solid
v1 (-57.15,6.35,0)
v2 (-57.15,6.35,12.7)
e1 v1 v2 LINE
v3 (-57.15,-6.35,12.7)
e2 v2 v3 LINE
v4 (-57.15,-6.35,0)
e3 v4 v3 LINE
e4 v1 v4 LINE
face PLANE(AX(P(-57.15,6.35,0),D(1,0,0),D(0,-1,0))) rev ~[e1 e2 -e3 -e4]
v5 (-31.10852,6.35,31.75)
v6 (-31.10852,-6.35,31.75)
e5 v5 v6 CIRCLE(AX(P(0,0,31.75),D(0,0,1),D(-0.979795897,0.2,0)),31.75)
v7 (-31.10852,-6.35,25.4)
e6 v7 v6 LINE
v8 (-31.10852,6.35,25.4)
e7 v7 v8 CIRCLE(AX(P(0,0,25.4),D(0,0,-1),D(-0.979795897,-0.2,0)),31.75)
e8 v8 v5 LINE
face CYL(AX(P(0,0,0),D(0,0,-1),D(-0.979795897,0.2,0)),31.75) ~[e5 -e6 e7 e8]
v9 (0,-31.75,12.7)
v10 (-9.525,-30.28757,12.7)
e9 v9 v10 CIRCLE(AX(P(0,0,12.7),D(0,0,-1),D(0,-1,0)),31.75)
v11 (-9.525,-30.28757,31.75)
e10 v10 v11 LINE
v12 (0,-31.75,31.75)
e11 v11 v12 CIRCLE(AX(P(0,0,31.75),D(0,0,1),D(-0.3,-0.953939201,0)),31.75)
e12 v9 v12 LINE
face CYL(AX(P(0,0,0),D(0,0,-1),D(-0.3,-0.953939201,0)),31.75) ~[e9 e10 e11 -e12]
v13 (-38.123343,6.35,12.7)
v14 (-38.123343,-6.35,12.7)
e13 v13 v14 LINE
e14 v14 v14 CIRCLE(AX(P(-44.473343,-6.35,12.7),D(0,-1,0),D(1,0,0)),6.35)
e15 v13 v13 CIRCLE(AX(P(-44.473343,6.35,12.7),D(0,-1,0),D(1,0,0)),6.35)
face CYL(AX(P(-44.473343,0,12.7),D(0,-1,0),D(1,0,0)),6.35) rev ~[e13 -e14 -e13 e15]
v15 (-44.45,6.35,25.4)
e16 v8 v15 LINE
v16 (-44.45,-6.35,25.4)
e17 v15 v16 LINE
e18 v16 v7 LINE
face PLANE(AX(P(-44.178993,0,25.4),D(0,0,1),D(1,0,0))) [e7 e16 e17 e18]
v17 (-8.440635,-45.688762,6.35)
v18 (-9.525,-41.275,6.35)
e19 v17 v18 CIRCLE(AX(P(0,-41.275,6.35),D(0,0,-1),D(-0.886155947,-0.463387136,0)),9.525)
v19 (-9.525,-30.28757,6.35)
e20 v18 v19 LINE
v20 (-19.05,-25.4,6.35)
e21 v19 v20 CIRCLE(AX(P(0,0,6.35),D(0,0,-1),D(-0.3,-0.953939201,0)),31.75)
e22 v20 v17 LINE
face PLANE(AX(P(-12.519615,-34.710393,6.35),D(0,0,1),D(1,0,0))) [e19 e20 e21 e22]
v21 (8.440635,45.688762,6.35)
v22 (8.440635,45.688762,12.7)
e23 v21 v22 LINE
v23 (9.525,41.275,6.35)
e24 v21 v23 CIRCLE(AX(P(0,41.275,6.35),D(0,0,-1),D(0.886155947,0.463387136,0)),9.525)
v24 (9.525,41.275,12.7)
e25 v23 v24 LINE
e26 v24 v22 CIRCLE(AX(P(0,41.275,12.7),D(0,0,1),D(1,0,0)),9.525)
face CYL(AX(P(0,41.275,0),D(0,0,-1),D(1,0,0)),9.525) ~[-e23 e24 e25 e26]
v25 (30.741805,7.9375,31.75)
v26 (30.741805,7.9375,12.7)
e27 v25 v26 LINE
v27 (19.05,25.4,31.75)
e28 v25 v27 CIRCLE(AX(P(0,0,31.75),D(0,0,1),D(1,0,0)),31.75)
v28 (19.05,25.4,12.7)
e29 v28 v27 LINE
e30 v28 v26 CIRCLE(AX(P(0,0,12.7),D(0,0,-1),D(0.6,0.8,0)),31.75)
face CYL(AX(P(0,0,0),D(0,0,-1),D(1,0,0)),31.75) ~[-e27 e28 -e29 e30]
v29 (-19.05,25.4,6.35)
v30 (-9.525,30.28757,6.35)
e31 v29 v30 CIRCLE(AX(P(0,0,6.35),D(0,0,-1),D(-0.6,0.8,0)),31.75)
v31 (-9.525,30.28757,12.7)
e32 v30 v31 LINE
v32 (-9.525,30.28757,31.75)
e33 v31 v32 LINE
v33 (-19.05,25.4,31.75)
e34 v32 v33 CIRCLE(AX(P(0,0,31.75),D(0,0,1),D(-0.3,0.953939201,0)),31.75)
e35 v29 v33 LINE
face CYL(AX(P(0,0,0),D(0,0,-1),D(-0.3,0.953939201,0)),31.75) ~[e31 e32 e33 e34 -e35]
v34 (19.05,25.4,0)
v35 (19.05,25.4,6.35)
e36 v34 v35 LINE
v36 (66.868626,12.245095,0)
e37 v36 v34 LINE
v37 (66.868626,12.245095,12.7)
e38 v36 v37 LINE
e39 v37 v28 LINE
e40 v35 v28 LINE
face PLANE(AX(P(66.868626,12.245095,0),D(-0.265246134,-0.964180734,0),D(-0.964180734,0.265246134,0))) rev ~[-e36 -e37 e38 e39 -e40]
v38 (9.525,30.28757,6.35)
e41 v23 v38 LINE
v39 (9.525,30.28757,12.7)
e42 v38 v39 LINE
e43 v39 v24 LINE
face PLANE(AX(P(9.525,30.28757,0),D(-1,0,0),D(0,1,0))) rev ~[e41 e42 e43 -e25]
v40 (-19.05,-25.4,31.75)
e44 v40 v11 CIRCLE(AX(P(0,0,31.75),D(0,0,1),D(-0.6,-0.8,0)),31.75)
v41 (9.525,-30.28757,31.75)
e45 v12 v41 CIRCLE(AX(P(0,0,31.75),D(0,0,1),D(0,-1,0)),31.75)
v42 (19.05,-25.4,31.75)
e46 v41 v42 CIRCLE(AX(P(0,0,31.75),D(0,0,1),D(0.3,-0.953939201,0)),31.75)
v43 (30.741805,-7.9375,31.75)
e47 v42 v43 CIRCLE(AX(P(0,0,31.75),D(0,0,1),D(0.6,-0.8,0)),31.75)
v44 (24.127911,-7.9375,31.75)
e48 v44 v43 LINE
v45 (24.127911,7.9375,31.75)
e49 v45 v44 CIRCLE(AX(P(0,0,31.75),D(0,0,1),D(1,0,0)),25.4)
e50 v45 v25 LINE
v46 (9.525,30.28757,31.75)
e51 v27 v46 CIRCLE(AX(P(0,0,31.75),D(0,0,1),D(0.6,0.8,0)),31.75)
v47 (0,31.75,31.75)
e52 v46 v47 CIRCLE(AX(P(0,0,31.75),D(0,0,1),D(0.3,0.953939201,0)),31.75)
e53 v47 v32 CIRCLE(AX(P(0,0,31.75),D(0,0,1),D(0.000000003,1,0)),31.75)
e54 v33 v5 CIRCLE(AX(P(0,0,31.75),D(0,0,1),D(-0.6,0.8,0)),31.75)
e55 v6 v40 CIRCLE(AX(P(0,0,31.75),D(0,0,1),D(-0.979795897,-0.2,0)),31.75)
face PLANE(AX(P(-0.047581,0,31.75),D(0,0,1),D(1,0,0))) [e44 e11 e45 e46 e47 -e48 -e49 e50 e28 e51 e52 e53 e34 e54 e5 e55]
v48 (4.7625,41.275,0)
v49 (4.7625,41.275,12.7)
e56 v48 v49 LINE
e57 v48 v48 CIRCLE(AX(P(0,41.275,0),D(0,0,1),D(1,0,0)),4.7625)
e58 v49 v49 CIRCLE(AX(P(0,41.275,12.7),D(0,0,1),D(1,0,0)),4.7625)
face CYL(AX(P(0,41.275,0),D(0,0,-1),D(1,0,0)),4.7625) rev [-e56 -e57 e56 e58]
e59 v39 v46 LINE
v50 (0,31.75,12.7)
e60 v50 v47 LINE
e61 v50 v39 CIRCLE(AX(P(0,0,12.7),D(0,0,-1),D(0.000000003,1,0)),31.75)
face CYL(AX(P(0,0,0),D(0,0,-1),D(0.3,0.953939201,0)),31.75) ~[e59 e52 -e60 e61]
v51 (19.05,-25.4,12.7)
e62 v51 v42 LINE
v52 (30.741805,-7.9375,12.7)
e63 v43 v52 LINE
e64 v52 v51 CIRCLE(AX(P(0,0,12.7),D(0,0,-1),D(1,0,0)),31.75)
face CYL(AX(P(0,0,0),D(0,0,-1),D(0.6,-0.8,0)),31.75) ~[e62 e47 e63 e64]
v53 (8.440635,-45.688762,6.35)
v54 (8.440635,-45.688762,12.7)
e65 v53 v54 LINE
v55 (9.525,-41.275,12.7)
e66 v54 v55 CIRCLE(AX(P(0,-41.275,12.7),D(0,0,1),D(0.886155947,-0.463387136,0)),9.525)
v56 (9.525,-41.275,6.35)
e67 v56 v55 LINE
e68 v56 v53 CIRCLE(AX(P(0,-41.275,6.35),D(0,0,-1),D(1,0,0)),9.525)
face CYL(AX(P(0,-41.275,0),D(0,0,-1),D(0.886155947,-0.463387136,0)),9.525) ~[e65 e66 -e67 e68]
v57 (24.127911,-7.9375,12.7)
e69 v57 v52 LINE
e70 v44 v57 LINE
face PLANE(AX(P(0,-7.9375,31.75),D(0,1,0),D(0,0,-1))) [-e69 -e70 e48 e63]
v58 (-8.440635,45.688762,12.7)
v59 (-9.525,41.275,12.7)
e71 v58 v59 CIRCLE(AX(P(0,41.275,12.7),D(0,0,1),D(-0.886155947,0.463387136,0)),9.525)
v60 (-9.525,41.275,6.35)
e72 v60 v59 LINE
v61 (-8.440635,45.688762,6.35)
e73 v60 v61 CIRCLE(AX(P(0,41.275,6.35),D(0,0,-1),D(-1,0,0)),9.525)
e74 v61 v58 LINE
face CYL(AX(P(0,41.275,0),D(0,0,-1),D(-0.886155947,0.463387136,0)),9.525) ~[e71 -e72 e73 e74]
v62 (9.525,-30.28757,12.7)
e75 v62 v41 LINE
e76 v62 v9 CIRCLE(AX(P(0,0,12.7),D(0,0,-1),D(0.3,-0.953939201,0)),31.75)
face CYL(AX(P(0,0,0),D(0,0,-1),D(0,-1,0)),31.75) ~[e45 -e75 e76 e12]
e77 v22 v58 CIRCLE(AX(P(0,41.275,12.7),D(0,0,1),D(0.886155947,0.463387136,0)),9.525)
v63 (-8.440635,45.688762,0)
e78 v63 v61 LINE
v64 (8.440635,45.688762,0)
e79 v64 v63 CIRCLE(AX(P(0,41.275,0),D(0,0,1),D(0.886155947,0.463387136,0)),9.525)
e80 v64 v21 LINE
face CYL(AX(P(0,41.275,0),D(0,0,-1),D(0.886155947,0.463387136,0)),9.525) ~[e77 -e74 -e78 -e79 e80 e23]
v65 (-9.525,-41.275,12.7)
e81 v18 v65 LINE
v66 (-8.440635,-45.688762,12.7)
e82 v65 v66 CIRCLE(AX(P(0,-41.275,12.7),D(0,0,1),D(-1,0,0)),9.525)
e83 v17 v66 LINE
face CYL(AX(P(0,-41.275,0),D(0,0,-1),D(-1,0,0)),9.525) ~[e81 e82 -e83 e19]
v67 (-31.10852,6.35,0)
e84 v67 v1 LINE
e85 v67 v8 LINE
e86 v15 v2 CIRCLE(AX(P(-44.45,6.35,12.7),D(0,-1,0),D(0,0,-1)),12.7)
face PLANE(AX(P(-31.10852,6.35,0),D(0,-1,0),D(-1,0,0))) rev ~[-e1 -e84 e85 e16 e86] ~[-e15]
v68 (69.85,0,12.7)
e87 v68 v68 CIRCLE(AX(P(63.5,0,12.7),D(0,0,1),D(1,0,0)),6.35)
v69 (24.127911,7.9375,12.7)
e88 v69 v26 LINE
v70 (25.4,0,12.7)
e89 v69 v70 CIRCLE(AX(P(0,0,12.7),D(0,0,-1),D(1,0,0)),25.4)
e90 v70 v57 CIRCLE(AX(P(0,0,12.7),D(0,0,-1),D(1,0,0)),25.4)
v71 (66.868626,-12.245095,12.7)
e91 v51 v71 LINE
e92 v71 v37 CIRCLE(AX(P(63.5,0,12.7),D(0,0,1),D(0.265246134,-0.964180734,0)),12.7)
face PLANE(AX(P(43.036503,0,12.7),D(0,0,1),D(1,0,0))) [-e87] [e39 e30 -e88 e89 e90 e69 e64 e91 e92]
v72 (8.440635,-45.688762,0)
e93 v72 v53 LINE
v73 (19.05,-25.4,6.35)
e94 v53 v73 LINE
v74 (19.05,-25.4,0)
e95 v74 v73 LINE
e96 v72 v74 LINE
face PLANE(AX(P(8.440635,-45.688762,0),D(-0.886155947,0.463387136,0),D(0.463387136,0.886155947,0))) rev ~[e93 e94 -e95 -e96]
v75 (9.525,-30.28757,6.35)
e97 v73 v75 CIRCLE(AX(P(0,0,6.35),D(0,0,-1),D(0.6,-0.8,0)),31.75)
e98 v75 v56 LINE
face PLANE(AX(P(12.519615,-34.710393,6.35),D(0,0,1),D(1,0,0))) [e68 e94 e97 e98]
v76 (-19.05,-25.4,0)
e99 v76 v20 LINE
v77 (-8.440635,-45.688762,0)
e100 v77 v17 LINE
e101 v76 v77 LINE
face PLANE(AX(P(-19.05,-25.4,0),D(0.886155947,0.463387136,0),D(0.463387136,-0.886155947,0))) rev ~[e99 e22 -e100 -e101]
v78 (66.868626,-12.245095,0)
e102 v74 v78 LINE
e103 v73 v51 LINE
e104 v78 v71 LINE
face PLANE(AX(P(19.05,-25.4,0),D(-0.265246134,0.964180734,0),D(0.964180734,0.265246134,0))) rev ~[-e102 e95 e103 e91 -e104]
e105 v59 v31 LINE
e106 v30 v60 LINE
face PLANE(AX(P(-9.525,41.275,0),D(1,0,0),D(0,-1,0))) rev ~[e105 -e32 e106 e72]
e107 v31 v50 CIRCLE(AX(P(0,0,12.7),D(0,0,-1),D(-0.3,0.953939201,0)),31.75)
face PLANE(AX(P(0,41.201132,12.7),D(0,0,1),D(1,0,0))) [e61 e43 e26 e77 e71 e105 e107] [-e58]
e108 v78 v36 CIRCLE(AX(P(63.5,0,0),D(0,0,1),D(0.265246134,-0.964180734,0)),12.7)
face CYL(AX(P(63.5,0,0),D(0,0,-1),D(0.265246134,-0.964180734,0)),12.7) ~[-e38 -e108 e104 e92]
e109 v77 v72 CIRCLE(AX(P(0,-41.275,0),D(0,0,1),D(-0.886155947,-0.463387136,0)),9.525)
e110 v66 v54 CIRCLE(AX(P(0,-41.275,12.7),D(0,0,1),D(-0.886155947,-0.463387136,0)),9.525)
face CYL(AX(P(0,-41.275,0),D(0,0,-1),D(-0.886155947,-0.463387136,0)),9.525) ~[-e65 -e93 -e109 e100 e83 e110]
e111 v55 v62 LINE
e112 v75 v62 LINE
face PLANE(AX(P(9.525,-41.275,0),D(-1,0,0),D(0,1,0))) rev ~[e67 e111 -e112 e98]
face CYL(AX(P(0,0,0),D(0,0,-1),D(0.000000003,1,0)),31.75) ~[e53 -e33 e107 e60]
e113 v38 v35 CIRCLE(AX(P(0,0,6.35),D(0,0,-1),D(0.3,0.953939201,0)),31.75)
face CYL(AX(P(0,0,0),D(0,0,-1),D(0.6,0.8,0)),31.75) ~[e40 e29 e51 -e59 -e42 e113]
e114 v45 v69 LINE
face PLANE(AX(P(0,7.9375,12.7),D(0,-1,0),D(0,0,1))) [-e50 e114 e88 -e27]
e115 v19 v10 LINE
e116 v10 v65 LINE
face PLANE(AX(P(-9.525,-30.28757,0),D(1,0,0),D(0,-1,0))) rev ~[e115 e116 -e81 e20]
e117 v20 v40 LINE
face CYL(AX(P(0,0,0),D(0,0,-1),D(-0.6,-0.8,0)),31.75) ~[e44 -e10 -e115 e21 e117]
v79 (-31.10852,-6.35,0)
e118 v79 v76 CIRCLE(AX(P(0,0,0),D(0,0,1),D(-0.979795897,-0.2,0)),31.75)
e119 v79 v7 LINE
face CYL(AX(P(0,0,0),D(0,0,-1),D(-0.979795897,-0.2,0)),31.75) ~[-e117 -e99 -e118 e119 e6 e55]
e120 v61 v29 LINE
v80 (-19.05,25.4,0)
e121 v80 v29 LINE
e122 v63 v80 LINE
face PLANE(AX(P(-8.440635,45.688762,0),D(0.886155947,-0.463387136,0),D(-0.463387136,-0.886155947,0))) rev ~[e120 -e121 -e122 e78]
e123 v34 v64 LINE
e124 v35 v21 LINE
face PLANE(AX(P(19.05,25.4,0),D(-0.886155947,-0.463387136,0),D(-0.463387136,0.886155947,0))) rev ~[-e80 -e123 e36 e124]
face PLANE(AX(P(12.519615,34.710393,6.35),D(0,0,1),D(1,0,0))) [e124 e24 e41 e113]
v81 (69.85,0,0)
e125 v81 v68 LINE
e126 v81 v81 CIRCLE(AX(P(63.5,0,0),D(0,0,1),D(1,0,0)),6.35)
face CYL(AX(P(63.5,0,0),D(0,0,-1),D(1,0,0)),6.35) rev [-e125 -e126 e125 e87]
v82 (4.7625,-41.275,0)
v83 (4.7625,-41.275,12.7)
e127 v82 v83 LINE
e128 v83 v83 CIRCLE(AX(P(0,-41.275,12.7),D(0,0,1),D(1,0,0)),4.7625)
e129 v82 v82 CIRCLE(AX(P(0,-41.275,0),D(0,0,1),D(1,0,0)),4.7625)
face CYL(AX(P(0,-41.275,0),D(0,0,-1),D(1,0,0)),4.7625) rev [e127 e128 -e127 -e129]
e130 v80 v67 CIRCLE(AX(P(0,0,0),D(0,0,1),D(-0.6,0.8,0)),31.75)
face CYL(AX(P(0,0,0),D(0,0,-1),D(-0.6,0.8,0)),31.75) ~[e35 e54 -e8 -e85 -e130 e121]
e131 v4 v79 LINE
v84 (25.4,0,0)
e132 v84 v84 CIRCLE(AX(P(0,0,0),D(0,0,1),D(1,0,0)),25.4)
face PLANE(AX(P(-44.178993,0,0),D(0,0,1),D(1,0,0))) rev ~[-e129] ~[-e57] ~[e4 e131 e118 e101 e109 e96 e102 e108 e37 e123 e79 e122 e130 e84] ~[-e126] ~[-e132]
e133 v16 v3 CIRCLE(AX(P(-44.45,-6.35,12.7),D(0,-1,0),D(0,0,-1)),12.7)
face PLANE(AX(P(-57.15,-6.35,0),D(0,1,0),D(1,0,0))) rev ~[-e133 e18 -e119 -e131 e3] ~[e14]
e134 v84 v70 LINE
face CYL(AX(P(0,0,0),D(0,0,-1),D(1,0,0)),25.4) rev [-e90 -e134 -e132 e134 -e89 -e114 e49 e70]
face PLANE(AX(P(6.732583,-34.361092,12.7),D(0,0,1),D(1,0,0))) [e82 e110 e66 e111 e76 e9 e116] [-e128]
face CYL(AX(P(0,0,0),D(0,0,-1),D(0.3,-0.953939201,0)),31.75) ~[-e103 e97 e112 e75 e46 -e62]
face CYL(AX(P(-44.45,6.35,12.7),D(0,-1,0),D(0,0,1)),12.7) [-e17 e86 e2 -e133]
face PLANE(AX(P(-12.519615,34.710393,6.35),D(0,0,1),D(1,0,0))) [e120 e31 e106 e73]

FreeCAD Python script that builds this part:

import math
import FreeCAD as App
import Part
import Sketcher
Q = App.Units.Quantity


def edges_at(feature, points):
    """Names of the edges that pass closest to the given points."""
    edges = feature.Shape.Edges
    near = lambda p: min(range(len(edges)), key=lambda i: edges[i].distToShape(Part.Vertex(*p))[0])
    return sorted({f"Edge{near(p) + 1}" for p in points})

doc = App.newDocument("Part")
body = doc.addObject("PartDesign::Body", "Body")

# Sketch on XY plane
sketch1 = body.newObject("Sketcher::SketchObject", "Sketch")
sketch1.AttachmentSupport = (doc.getObject("XY_Plane"), [""])
sketch1.MapMode = "FlatFace"
sketch1.addGeometry(Part.ArcOfCircle(Part.Circle(App.Vector(0, 0, 0), App.Vector(0, 0, 1), 32), math.radians(-53), math.radians(0)), False)
sketch1.addGeometry(Part.ArcOfCircle(Part.Circle(App.Vector(0, 0, 0), App.Vector(0, 0, 1), 32), math.radians(0), math.radians(53)), False)
sketch1.addGeometry(Part.ArcOfCircle(Part.Circle(App.Vector(0, 0, 0), App.Vector(0, 0, 1), 32), math.radians(53.13), math.radians(72.54)), False)
sketch1.addGeometry(Part.ArcOfCircle(Part.Circle(App.Vector(0, 0, 0), App.Vector(0, 0, 1), 32), math.radians(72.54), math.radians(90)), False)
sketch1.addGeometry(Part.ArcOfCircle(Part.Circle(App.Vector(0, 0, 0), App.Vector(0, 0, 1), 32), math.radians(90), math.radians(107.46)), False)
sketch1.addGeometry(Part.ArcOfCircle(Part.Circle(App.Vector(0, 0, 0), App.Vector(0, 0, 1), 32), math.radians(107.46), math.radians(126.87)), False)
sketch1.addGeometry(Part.ArcOfCircle(Part.Circle(App.Vector(0, 0, 0), App.Vector(0, 0, 1), 32), math.radians(127), math.radians(168)), False)
sketch1.addGeometry(Part.ArcOfCircle(Part.Circle(App.Vector(0, 0, 0), App.Vector(0, 0, 1), 32), math.radians(168), math.radians(192)), False)
sketch1.addGeometry(Part.ArcOfCircle(Part.Circle(App.Vector(0, 0, 0), App.Vector(0, 0, 1), 32), math.radians(-168), math.radians(-127)), False)
sketch1.addGeometry(Part.ArcOfCircle(Part.Circle(App.Vector(0, 0, 0), App.Vector(0, 0, 1), 32), math.radians(-126.87), math.radians(-107.46)), False)
sketch1.addGeometry(Part.ArcOfCircle(Part.Circle(App.Vector(0, 0, 0), App.Vector(0, 0, 1), 32), math.radians(-107.46), math.radians(-90)), False)
sketch1.addGeometry(Part.ArcOfCircle(Part.Circle(App.Vector(0, 0, 0), App.Vector(0, 0, 1), 32), math.radians(-90), math.radians(-72.54)), False)
sketch1.addGeometry(Part.ArcOfCircle(Part.Circle(App.Vector(0, 0, 0), App.Vector(0, 0, 1), 32), math.radians(-72.54), math.radians(-53.13)), False)
sketch1.addGeometry(Part.Circle(App.Vector(0, 0, 0), App.Vector(0, 0, 1), 25), False)
sketch1.addConstraint(Sketcher.Constraint("Tangent", 0, 2, 1, 1))
sketch1.addConstraint(Sketcher.Constraint("Tangent", 1, 2, 2, 1))
sketch1.addConstraint(Sketcher.Constraint("Tangent", 2, 2, 3, 1))
sketch1.addConstraint(Sketcher.Constraint("Tangent", 3, 2, 4, 1))
sketch1.addConstraint(Sketcher.Constraint("Tangent", 4, 2, 5, 1))
sketch1.addConstraint(Sketcher.Constraint("Tangent", 5, 2, 6, 1))
sketch1.addConstraint(Sketcher.Constraint("Tangent", 6, 2, 7, 1))
sketch1.addConstraint(Sketcher.Constraint("Tangent", 7, 2, 8, 1))
sketch1.addConstraint(Sketcher.Constraint("Tangent", 8, 2, 9, 1))
sketch1.addConstraint(Sketcher.Constraint("Tangent", 9, 2, 10, 1))
sketch1.addConstraint(Sketcher.Constraint("Tangent", 10, 2, 11, 1))
sketch1.addConstraint(Sketcher.Constraint("Tangent", 11, 2, 12, 1))
sketch1.addConstraint(Sketcher.Constraint("Tangent", 12, 2, 0, 1))
sketch1.addConstraint(Sketcher.Constraint("Coincident", 0, 3, -1, 1))
sketch1.addConstraint(Sketcher.Constraint("Coincident", 2, 3, -1, 1))
sketch1.addConstraint(Sketcher.Constraint("Coincident", 4, 3, -1, 1))
sketch1.addConstraint(Sketcher.Constraint("Coincident", 6, 3, -1, 1))
sketch1.addConstraint(Sketcher.Constraint("Coincident", 8, 3, -1, 1))
sketch1.addConstraint(Sketcher.Constraint("Coincident", 10, 3, -1, 1))
sketch1.addConstraint(Sketcher.Constraint("Coincident", 13, 3, -1, 1))
sketch1.addConstraint(Sketcher.Constraint("PointOnObject", 0, 2, -1))
sketch1.addConstraint(Sketcher.Constraint("PointOnObject", 3, 2, -2))
sketch1.addConstraint(Sketcher.Constraint("PointOnObject", 10, 2, -2))
sketch1.addConstraint(Sketcher.Constraint("Horizontal", 2, 2, 4, 2))
sketch1.addConstraint(Sketcher.Constraint("Horizontal", 1, 2, 5, 2))
sketch1.addConstraint(Sketcher.Constraint("Horizontal", 9, 2, 11, 2))
sketch1.addConstraint(Sketcher.Constraint("Horizontal", 8, 2, 12, 2))
sketch1.addConstraint(Sketcher.Constraint("Vertical", 6, 2, 7, 2))
sketch1.addConstraint(Sketcher.Constraint("Vertical", 5, 2, 8, 2))
sketch1.addConstraint(Sketcher.Constraint("Vertical", 4, 2, 9, 2))
sketch1.addConstraint(Sketcher.Constraint("Diameter", 13, Q("2 in")))
sketch1.addConstraint(Sketcher.Constraint("Radius", 0, Q("1.25 in")))
sketch1.addConstraint(Sketcher.Constraint("DistanceY", -1, 1, 1, 2, Q("1 in")))
sketch1.addConstraint(Sketcher.Constraint("DistanceY", 7, 2, 6, 2, Q("0.5 in")))
sketch1.addConstraint(Sketcher.Constraint("DistanceX", 4, 2, 2, 2, Q("0.75 in")))
pad1 = body.newObject("PartDesign::Pad", "Pad")
pad1.Profile = sketch1
pad1.Length = Q("1.25 in")

# Sketch on XY plane
sketch2 = body.newObject("Sketcher::SketchObject", "Sketch001")
sketch2.AttachmentSupport = (doc.getObject("XY_Plane"), [""])
sketch2.MapMode = "FlatFace"
sketch2.addGeometry(Part.ArcOfCircle(Part.Circle(App.Vector(0, 41.3, 0), App.Vector(0, 0, 1), 9.5), math.radians(0), math.radians(28)), False)
sketch2.addGeometry(Part.ArcOfCircle(Part.Circle(App.Vector(0, 41.3, 0), App.Vector(0, 0, 1), 9.5), math.radians(28), math.radians(152)), False)
sketch2.addGeometry(Part.ArcOfCircle(Part.Circle(App.Vector(0, 41.3, 0), App.Vector(0, 0, 1), 9.5), math.radians(152), math.radians(180)), False)
sketch2.addGeometry(Part.LineSegment(App.Vector(-9.5, 41.3, 0), App.Vector(-9.5, 30.3, 0)), False)
sketch2.addGeometry(Part.ArcOfCircle(Part.Circle(App.Vector(0, 0, 0), App.Vector(0, 0, 1), 31.7), math.radians(90), math.radians(107.46)), False)
sketch2.addGeometry(Part.ArcOfCircle(Part.Circle(App.Vector(0, 0, 0), App.Vector(0, 0, 1), 31.7), math.radians(72.54), math.radians(90)), False)
sketch2.addGeometry(Part.LineSegment(App.Vector(9.5, 30.3, 0), App.Vector(9.5, 41.3, 0)), False)
sketch2.addGeometry(Part.Circle(App.Vector(0, 41.3, 0), App.Vector(0, 0, 1), 4.8), False)
sketch2.addGeometry(Part.LineSegment(App.Vector(9.5, -41.3, 0), App.Vector(9.5, -30.3, 0)), False)
sketch2.addGeometry(Part.ArcOfCircle(Part.Circle(App.Vector(0, 0, 0), App.Vector(0, 0, 1), 31.7), math.radians(-90), math.radians(-72.54)), False)
sketch2.addGeometry(Part.ArcOfCircle(Part.Circle(App.Vector(0, 0, 0), App.Vector(0, 0, 1), 31.7), math.radians(-107.46), math.radians(-90)), False)
sketch2.addGeometry(Part.LineSegment(App.Vector(-9.5, -30.3, 0), App.Vector(-9.5, -41.3, 0)), False)
sketch2.addGeometry(Part.ArcOfCircle(Part.Circle(App.Vector(0, -41.3, 0), App.Vector(0, 0, 1), 9.5), math.radians(180), math.radians(208)), False)
sketch2.addGeometry(Part.ArcOfCircle(Part.Circle(App.Vector(0, -41.3, 0), App.Vector(0, 0, 1), 9.5), math.radians(-152), math.radians(-28)), False)
sketch2.addGeometry(Part.ArcOfCircle(Part.Circle(App.Vector(0, -41.3, 0), App.Vector(0, 0, 1), 9.5), math.radians(-28), math.radians(0)), False)
sketch2.addGeometry(Part.Circle(App.Vector(0, -41.3, 0), App.Vector(0, 0, 1), 4.8), False)
sketch2.addGeometry(Part.ArcOfCircle(Part.Circle(App.Vector(0, 0, 0), App.Vector(0, 0, 1), 31.8), math.radians(0), math.radians(53)), False)
sketch2.addGeometry(Part.ArcOfCircle(Part.Circle(App.Vector(0, 0, 0), App.Vector(0, 0, 1), 31.8), math.radians(-53), math.radians(0)), False)
sketch2.addGeometry(Part.LineSegment(App.Vector(19.1, -25.4, 0), App.Vector(66.9, -12.2, 0)), False)
sketch2.addGeometry(Part.ArcOfCircle(Part.Circle(App.Vector(63.5, 0, 0), App.Vector(0, 0, 1), 12.7), math.radians(-75), math.radians(75)), False)
sketch2.addGeometry(Part.LineSegment(App.Vector(66.9, 12.2, 0), App.Vector(19.1, 25.4, 0)), False)
sketch2.addGeometry(Part.Circle(App.Vector(63.5, 0, 0), App.Vector(0, 0, 1), 6.3), False)
sketch2.addConstraint(Sketcher.Constraint("Tangent", 0, 2, 1, 1))
sketch2.addConstraint(Sketcher.Constraint("Tangent", 1, 2, 2, 1))
sketch2.addConstraint(Sketcher.Constraint("Tangent", 2, 2, 3, 1))
sketch2.addConstraint(Sketcher.Constraint("Coincident", 3, 2, 4, 2))
sketch2.addConstraint(Sketcher.Constraint("Tangent", 4, 1, 5, 2))
sketch2.addConstraint(Sketcher.Constraint("Coincident", 5, 1, 6, 1))
sketch2.addConstraint(Sketcher.Constraint("Tangent", 6, 2, 0, 1))
sketch2.addConstraint(Sketcher.Constraint("Coincident", 8, 2, 9, 2))
sketch2.addConstraint(Sketcher.Constraint("Tangent", 9, 1, 10, 2))
sketch2.addConstraint(Sketcher.Constraint("Coincident", 10, 1, 11, 1))
sketch2.addConstraint(Sketcher.Constraint("Tangent", 11, 2, 12, 1))
sketch2.addConstraint(Sketcher.Constraint("Tangent", 12, 2, 13, 1))
sketch2.addConstraint(Sketcher.Constraint("Tangent", 13, 2, 14, 1))
sketch2.addConstraint(Sketcher.Constraint("Tangent", 14, 2, 8, 1))
sketch2.addConstraint(Sketcher.Constraint("Tangent", 16, 1, 17, 2))
sketch2.addConstraint(Sketcher.Constraint("Coincident", 17, 1, 18, 1))
sketch2.addConstraint(Sketcher.Constraint("Tangent", 18, 2, 19, 1))
sketch2.addConstraint(Sketcher.Constraint("Tangent", 19, 2, 20, 1))
sketch2.addConstraint(Sketcher.Constraint("Coincident", 20, 2, 16, 2))
sketch2.addConstraint(Sketcher.Constraint("Vertical", 3))
sketch2.addConstraint(Sketcher.Constraint("Vertical", 6))
sketch2.addConstraint(Sketcher.Constraint("Vertical", 8))
sketch2.addConstraint(Sketcher.Constraint("Vertical", 11))
sketch2.addConstraint(Sketcher.Constraint("Coincident", 4, 3, -1, 1))
sketch2.addConstraint(Sketcher.Constraint("Coincident", 9, 3, -1, 1))
sketch2.addConstraint(Sketcher.Constraint("Coincident", 16, 3, -1, 1))
sketch2.addConstraint(Sketcher.Constraint("Coincident", 2, 3, 0, 3))
sketch2.addConstraint(Sketcher.Constraint("Coincident", 7, 3, 0, 3))
sketch2.addConstraint(Sketcher.Constraint("Coincident", 14, 3, 12, 3))
sketch2.addConstraint(Sketcher.Constraint("Coincident", 15, 3, 12, 3))
sketch2.addConstraint(Sketcher.Constraint("Coincident", 21, 3, 19, 3))
sketch2.addConstraint(Sketcher.Constraint("Equal", 4, 5))
sketch2.addConstraint(Sketcher.Constraint("Equal", 5, 9))
sketch2.addConstraint(Sketcher.Constraint("Equal", 9, 10))
sketch2.addConstraint(Sketcher.Constraint("Equal", 2, 12))
sketch2.addConstraint(Sketcher.Constraint("Equal", 7, 15))
sketch2.addConstraint(Sketcher.Constraint("Equal", 10, 16))
sketch2.addConstraint(Sketcher.Constraint("Equal", 16, 17))
sketch2.addConstraint(Sketcher.Constraint("Symmetric", 0, 3, 12, 3, -1, 1))
sketch2.addConstraint(Sketcher.Constraint("Symmetric", 0, 2, 1, 2, -2))
sketch2.addConstraint(Sketcher.Constraint("Symmetric", 18, 2, 19, 2, -1))
sketch2.addConstraint(Sketcher.Constraint("PointOnObject", 4, 1, -2))
sketch2.addConstraint(Sketcher.Constraint("PointOnObject", 9, 1, -2))
sketch2.addConstraint(Sketcher.Constraint("PointOnObject", 16, 1, -1))
sketch2.addConstraint(Sketcher.Constraint("Horizontal", 12, 2, 13, 2))
sketch2.addConstraint(Sketcher.Constraint("Vertical", 1, 2, 12, 2))
sketch2.addConstraint(Sketcher.Constraint("Diameter", 21, Q("0.5 in")))
sketch2.addConstraint(Sketcher.Constraint("Radius", 19, Q("0.5 in")))
sketch2.addConstraint(Sketcher.Constraint("Radius", 4, Q("1.25 in")))
sketch2.addConstraint(Sketcher.Constraint("Diameter", 7, Q("0.375 in")))
sketch2.addConstraint(Sketcher.Constraint("DistanceY", 17, 1, -1, 1, Q("1 in")))
sketch2.addConstraint(Sketcher.Constraint("Radius", 0, Q("0.375 in")))
sketch2.addConstraint(Sketcher.Constraint("DistanceX", -1, 1, 19, 3, Q("2.5 in")))
sketch2.addConstraint(Sketcher.Constraint("DistanceY", 12, 3, 0, 3, Q("3.25 in")))
sketch2.addConstraint(Sketcher.Constraint("DistanceX", 1, 2, 0, 2, Q("16.881271 mm")))
pad2 = body.newObject("PartDesign::Pad", "Pad001")
pad2.Profile = sketch2
pad2.Length = Q("0.5 in")

# Sketch on XY plane
sketch3 = body.newObject("Sketcher::SketchObject", "Sketch002")
sketch3.AttachmentSupport = (doc.getObject("XY_Plane"), [""])
sketch3.MapMode = "FlatFace"
sketch3.addGeometry(Part.ArcOfCircle(Part.Circle(App.Vector(0, 41.3, 0), App.Vector(0, 0, 1), 9.5), math.radians(152), math.radians(180)), False)
sketch3.addGeometry(Part.LineSegment(App.Vector(-8.4, 45.7, 0), App.Vector(-19.1, 25.4, 0)), False)
sketch3.addGeometry(Part.ArcOfCircle(Part.Circle(App.Vector(0, 0, 0), App.Vector(0, 0, 1), 31.7), math.radians(107.46), math.radians(126.87)), False)
sketch3.addGeometry(Part.LineSegment(App.Vector(-9.5, 30.3, 0), App.Vector(-9.5, 41.3, 0)), False)
sketch3.addGeometry(Part.ArcOfCircle(Part.Circle(App.Vector(0, 0, 0), App.Vector(0, 0, 1), 31.7), math.radians(53.13), math.radians(72.54)), False)
sketch3.addGeometry(Part.LineSegment(App.Vector(19.1, 25.4, 0), App.Vector(8.4, 45.7, 0)), False)
sketch3.addGeometry(Part.ArcOfCircle(Part.Circle(App.Vector(0, 41.3, 0), App.Vector(0, 0, 1), 9.5), math.radians(0), math.radians(28)), False)
sketch3.addGeometry(Part.LineSegment(App.Vector(9.5, 41.3, 0), App.Vector(9.5, 30.3, 0)), False)
sketch3.addGeometry(Part.LineSegment(App.Vector(8.4, -45.7, 0), App.Vector(19.1, -25.4, 0)), False)
sketch3.addGeometry(Part.ArcOfCircle(Part.Circle(App.Vector(0, 0, 0), App.Vector(0, 0, 1), 31.7), math.radians(-72.54), math.radians(-53.13)), False)
sketch3.addGeometry(Part.LineSegment(App.Vector(9.5, -30.3, 0), App.Vector(9.5, -41.3, 0)), False)
sketch3.addGeometry(Part.ArcOfCircle(Part.Circle(App.Vector(0, -41.3, 0), App.Vector(0, 0, 1), 9.5), math.radians(-28), math.radians(0)), False)
sketch3.addGeometry(Part.LineSegment(App.Vector(-19.1, -25.4, 0), App.Vector(-8.4, -45.7, 0)), False)
sketch3.addGeometry(Part.ArcOfCircle(Part.Circle(App.Vector(0, -41.3, 0), App.Vector(0, 0, 1), 9.5), math.radians(180), math.radians(208)), False)
sketch3.addGeometry(Part.LineSegment(App.Vector(-9.5, -41.3, 0), App.Vector(-9.5, -30.3, 0)), False)
sketch3.addGeometry(Part.ArcOfCircle(Part.Circle(App.Vector(0, 0, 0), App.Vector(0, 0, 1), 31.7), math.radians(-126.87), math.radians(-107.46)), False)
sketch3.addConstraint(Sketcher.Constraint("Tangent", 0, 1, 1, 1))
sketch3.addConstraint(Sketcher.Constraint("Coincident", 1, 2, 2, 2))
sketch3.addConstraint(Sketcher.Constraint("Coincident", 2, 1, 3, 1))
sketch3.addConstraint(Sketcher.Constraint("Tangent", 3, 2, 0, 2))
sketch3.addConstraint(Sketcher.Constraint("Coincident", 4, 1, 5, 1))
sketch3.addConstraint(Sketcher.Constraint("Tangent", 5, 2, 6, 2))
sketch3.addConstraint(Sketcher.Constraint("Tangent", 6, 1, 7, 1))
sketch3.addConstraint(Sketcher.Constraint("Coincident", 7, 2, 4, 2))
sketch3.addConstraint(Sketcher.Constraint("Coincident", 8, 2, 9, 2))
sketch3.addConstraint(Sketcher.Constraint("Coincident", 9, 1, 10, 1))
sketch3.addConstraint(Sketcher.Constraint("Tangent", 10, 2, 11, 2))
sketch3.addConstraint(Sketcher.Constraint("Tangent", 11, 1, 8, 1))
sketch3.addConstraint(Sketcher.Constraint("Tangent", 12, 2, 13, 2))
sketch3.addConstraint(Sketcher.Constraint("Tangent", 13, 1, 14, 1))
sketch3.addConstraint(Sketcher.Constraint("Coincident", 14, 2, 15, 2))
sketch3.addConstraint(Sketcher.Constraint("Coincident", 15, 1, 12, 1))
sketch3.addConstraint(Sketcher.Constraint("Vertical", 3))
sketch3.addConstraint(Sketcher.Constraint("Vertical", 7))
sketch3.addConstraint(Sketcher.Constraint("Vertical", 10))
sketch3.addConstraint(Sketcher.Constraint("Vertical", 14))
sketch3.addConstraint(Sketcher.Constraint("Coincident", 2, 3, -1, 1))
sketch3.addConstraint(Sketcher.Constraint("Coincident", 4, 3, -1, 1))
sketch3.addConstraint(Sketcher.Constraint("Coincident", 9, 3, -1, 1))
sketch3.addConstraint(Sketcher.Constraint("Coincident", 15, 3, -1, 1))
sketch3.addConstraint(Sketcher.Constraint("Coincident", 6, 3, 0, 3))
sketch3.addConstraint(Sketcher.Constraint("Coincident", 13, 3, 11, 3))
sketch3.addConstraint(Sketcher.Constraint("Equal", 2, 4))
sketch3.addConstraint(Sketcher.Constraint("Equal", 0, 6))
sketch3.addConstraint(Sketcher.Constraint("Equal", 4, 9))
sketch3.addConstraint(Sketcher.Constraint("Equal", 6, 11))
sketch3.addConstraint(Sketcher.Constraint("Equal", 11, 13))
sketch3.addConstraint(Sketcher.Constraint("Equal", 9, 15))
sketch3.addConstraint(Sketcher.Constraint("Symmetric", 0, 3, 11, 3, -1, 1))
sketch3.addConstraint(Sketcher.Constraint("Symmetric", 0, 1, 5, 2, -2))
sketch3.addConstraint(Sketcher.Constraint("Parallel", 1, 8))
sketch3.addConstraint(Sketcher.Constraint("Parallel", 5, 12))
sketch3.addConstraint(Sketcher.Constraint("Radius", 2, Q("1.25 in")))
sketch3.addConstraint(Sketcher.Constraint("DistanceY", -1, 1, 1, 2, Q("1 in")))
sketch3.addConstraint(Sketcher.Constraint("Radius", 0, Q("0.375 in")))
sketch3.addConstraint(Sketcher.Constraint("DistanceY", 11, 3, 0, 3, Q("3.25 in")))
pad3 = body.newObject("PartDesign::Pad", "Pad002")
pad3.Profile = sketch3
pad3.Length = Q("0.25 in")

# Sketch on XY plane
sketch4 = body.newObject("Sketcher::SketchObject", "Sketch003")
sketch4.AttachmentSupport = (doc.getObject("XY_Plane"), [""])
sketch4.MapMode = "FlatFace"
sketch4.addGeometry(Part.ArcOfCircle(Part.Circle(App.Vector(0, 0, 0), App.Vector(0, 0, 1), 32), math.radians(168), math.radians(192)), False)
sketch4.addGeometry(Part.LineSegment(App.Vector(-31, 6, 0), App.Vector(-57, 6, 0)), False)
sketch4.addGeometry(Part.LineSegment(App.Vector(-57, 6, 0), App.Vector(-57, -6, 0)), False)
sketch4.addGeometry(Part.LineSegment(App.Vector(-57, -6, 0), App.Vector(-31, -6, 0)), False)
sketch4.addConstraint(Sketcher.Constraint("Coincident", 0, 1, 1, 1))
sketch4.addConstraint(Sketcher.Constraint("Coincident", 1, 2, 2, 1))
sketch4.addConstraint(Sketcher.Constraint("Coincident", 2, 2, 3, 1))
sketch4.addConstraint(Sketcher.Constraint("Coincident", 3, 2, 0, 2))
sketch4.addConstraint(Sketcher.Constraint("Horizontal", 1))
sketch4.addConstraint(Sketcher.Constraint("Vertical", 2))
sketch4.addConstraint(Sketcher.Constraint("Horizontal", 3))
sketch4.addConstraint(Sketcher.Constraint("Coincident", 0, 3, -1, 1))
sketch4.addConstraint(Sketcher.Constraint("Vertical", 0, 1, 3, 2))
sketch4.addConstraint(Sketcher.Constraint("Radius", 0, Q("1.25 in")))
sketch4.addConstraint(Sketcher.Constraint("DistanceY", 2, 2, 2, 1, Q("0.5 in")))
sketch4.addConstraint(Sketcher.Constraint("DistanceX", 1, 2, -1, 1, Q("2.25 in")))
pad4 = body.newObject("PartDesign::Pad", "Pad003")
pad4.Profile = sketch4
pad4.Length = Q("1 in")

# Sketch on XZ plane
sketch5 = body.newObject("Sketcher::SketchObject", "Sketch004")
sketch5.AttachmentSupport = (doc.getObject("XZ_Plane"), [""])
sketch5.MapMode = "FlatFace"
sketch5.addGeometry(Part.Circle(App.Vector(-44, 13, 0), App.Vector(0, 0, 1), 6), False)
sketch5.addConstraint(Sketcher.Constraint("Diameter", 0, Q("0.5 in")))
sketch5.addConstraint(Sketcher.Constraint("DistanceY", -1, 1, 0, 3, Q("0.5 in")))
sketch5.addConstraint(Sketcher.Constraint("DistanceX", 0, 3, -1, 1, Q("44.473343 mm")))
pocket1 = body.newObject("PartDesign::Pocket", "Pocket")
pocket1.Profile = sketch5
pocket1.Length = Q("0.5 in")
pocket1.Midplane = True

# Sketch on XZ plane
sketch6 = body.newObject("Sketcher::SketchObject", "Sketch005")
sketch6.AttachmentSupport = (doc.getObject("XZ_Plane"), [""])
sketch6.MapMode = "FlatFace"
sketch6.addGeometry(Part.Circle(App.Vector(-44, 13, 0), App.Vector(0, 0, 1), 6), False)
sketch6.addConstraint(Sketcher.Constraint("Diameter", 0, Q("0.5 in")))
sketch6.addConstraint(Sketcher.Constraint("DistanceY", -1, 1, 0, 3, Q("0.5 in")))
sketch6.addConstraint(Sketcher.Constraint("DistanceX", 0, 3, -1, 1, Q("44.473343 mm")))
pocket2 = body.newObject("PartDesign::Pocket", "Pocket001")
pocket2.Profile = sketch6
pocket2.Length = Q("0.5 in")
pocket2.Midplane = True
doc.recompute()

fillet = body.newObject("PartDesign::Fillet", "Fillet")
fillet.Base = (pocket2, edges_at(pocket2, [(-57.15, 0, 25.4)]))
fillet.Radius = Q("0.5 in")

# Sketch on YZ plane
sketch7 = body.newObject("Sketcher::SketchObject", "Sketch006")
sketch7.AttachmentSupport = (doc.getObject("YZ_Plane"), [""])
sketch7.MapMode = "FlatFace"
sketch7.addGeometry(Part.LineSegment(App.Vector(-8, 32, 0), App.Vector(-8, 13, 0)), False)
sketch7.addGeometry(Part.LineSegment(App.Vector(-8, 13, 0), App.Vector(8, 13, 0)), False)
sketch7.addGeometry(Part.LineSegment(App.Vector(8, 13, 0), App.Vector(8, 32, 0)), False)
sketch7.addGeometry(Part.LineSegment(App.Vector(8, 32, 0), App.Vector(-8, 32, 0)), False)
sketch7.addConstraint(Sketcher.Constraint("Coincident", 0, 2, 1, 1))
sketch7.addConstraint(Sketcher.Constraint("Coincident", 1, 2, 2, 1))
sketch7.addConstraint(Sketcher.Constraint("Coincident", 2, 2, 3, 1))
sketch7.addConstraint(Sketcher.Constraint("Coincident", 3, 2, 0, 1))
sketch7.addConstraint(Sketcher.Constraint("Vertical", 0))
sketch7.addConstraint(Sketcher.Constraint("Horizontal", 1))
sketch7.addConstraint(Sketcher.Constraint("Vertical", 2))
sketch7.addConstraint(Sketcher.Constraint("Horizontal", 3))
sketch7.addConstraint(Sketcher.Constraint("DistanceY", 0, 2, 0, 1, Q("0.75 in")))
sketch7.addConstraint(Sketcher.Constraint("DistanceY", -1, 1, 0, 2, Q("0.5 in")))
sketch7.addConstraint(Sketcher.Constraint("DistanceX", 1, 1, 1, 2, Q("0.625 in")))
sketch7.addConstraint(Sketcher.Constraint("DistanceX", 0, 2, -1, 1, Q("0.3125 in")))
pocket3 = body.newObject("PartDesign::Pocket", "Pocket002")
pocket3.Profile = sketch7
pocket3.Length = Q("1.25 in")
pocket3.Reversed = True

# Sketch on YZ plane
sketch8 = body.newObject("Sketcher::SketchObject", "Sketch007")
sketch8.AttachmentSupport = (doc.getObject("YZ_Plane"), [""])
sketch8.MapMode = "FlatFace"
sketch8.addGeometry(Part.LineSegment(App.Vector(-8, 32, 0), App.Vector(-8, 13, 0)), False)
sketch8.addGeometry(Part.LineSegment(App.Vector(-8, 13, 0), App.Vector(8, 13, 0)), False)
sketch8.addGeometry(Part.LineSegment(App.Vector(8, 13, 0), App.Vector(8, 32, 0)), False)
sketch8.addGeometry(Part.LineSegment(App.Vector(8, 32, 0), App.Vector(-8, 32, 0)), False)
sketch8.addConstraint(Sketcher.Constraint("Coincident", 0, 2, 1, 1))
sketch8.addConstraint(Sketcher.Constraint("Coincident", 1, 2, 2, 1))
sketch8.addConstraint(Sketcher.Constraint("Coincident", 2, 2, 3, 1))
sketch8.addConstraint(Sketcher.Constraint("Coincident", 3, 2, 0, 1))
sketch8.addConstraint(Sketcher.Constraint("Vertical", 0))
sketch8.addConstraint(Sketcher.Constraint("Horizontal", 1))
sketch8.addConstraint(Sketcher.Constraint("Vertical", 2))
sketch8.addConstraint(Sketcher.Constraint("Horizontal", 3))
sketch8.addConstraint(Sketcher.Constraint("DistanceY", 0, 2, 0, 1, Q("0.75 in")))
sketch8.addConstraint(Sketcher.Constraint("DistanceY", -1, 1, 0, 2, Q("0.5 in")))
sketch8.addConstraint(Sketcher.Constraint("DistanceX", 1, 1, 1, 2, Q("0.625 in")))
sketch8.addConstraint(Sketcher.Constraint("DistanceX", 0, 2, -1, 1, Q("0.3125 in")))
pocket4 = body.newObject("PartDesign::Pocket", "Pocket003")
pocket4.Profile = sketch8
pocket4.Length = Q("2.5 in")
pocket4.Reversed = True

doc.recompute()
